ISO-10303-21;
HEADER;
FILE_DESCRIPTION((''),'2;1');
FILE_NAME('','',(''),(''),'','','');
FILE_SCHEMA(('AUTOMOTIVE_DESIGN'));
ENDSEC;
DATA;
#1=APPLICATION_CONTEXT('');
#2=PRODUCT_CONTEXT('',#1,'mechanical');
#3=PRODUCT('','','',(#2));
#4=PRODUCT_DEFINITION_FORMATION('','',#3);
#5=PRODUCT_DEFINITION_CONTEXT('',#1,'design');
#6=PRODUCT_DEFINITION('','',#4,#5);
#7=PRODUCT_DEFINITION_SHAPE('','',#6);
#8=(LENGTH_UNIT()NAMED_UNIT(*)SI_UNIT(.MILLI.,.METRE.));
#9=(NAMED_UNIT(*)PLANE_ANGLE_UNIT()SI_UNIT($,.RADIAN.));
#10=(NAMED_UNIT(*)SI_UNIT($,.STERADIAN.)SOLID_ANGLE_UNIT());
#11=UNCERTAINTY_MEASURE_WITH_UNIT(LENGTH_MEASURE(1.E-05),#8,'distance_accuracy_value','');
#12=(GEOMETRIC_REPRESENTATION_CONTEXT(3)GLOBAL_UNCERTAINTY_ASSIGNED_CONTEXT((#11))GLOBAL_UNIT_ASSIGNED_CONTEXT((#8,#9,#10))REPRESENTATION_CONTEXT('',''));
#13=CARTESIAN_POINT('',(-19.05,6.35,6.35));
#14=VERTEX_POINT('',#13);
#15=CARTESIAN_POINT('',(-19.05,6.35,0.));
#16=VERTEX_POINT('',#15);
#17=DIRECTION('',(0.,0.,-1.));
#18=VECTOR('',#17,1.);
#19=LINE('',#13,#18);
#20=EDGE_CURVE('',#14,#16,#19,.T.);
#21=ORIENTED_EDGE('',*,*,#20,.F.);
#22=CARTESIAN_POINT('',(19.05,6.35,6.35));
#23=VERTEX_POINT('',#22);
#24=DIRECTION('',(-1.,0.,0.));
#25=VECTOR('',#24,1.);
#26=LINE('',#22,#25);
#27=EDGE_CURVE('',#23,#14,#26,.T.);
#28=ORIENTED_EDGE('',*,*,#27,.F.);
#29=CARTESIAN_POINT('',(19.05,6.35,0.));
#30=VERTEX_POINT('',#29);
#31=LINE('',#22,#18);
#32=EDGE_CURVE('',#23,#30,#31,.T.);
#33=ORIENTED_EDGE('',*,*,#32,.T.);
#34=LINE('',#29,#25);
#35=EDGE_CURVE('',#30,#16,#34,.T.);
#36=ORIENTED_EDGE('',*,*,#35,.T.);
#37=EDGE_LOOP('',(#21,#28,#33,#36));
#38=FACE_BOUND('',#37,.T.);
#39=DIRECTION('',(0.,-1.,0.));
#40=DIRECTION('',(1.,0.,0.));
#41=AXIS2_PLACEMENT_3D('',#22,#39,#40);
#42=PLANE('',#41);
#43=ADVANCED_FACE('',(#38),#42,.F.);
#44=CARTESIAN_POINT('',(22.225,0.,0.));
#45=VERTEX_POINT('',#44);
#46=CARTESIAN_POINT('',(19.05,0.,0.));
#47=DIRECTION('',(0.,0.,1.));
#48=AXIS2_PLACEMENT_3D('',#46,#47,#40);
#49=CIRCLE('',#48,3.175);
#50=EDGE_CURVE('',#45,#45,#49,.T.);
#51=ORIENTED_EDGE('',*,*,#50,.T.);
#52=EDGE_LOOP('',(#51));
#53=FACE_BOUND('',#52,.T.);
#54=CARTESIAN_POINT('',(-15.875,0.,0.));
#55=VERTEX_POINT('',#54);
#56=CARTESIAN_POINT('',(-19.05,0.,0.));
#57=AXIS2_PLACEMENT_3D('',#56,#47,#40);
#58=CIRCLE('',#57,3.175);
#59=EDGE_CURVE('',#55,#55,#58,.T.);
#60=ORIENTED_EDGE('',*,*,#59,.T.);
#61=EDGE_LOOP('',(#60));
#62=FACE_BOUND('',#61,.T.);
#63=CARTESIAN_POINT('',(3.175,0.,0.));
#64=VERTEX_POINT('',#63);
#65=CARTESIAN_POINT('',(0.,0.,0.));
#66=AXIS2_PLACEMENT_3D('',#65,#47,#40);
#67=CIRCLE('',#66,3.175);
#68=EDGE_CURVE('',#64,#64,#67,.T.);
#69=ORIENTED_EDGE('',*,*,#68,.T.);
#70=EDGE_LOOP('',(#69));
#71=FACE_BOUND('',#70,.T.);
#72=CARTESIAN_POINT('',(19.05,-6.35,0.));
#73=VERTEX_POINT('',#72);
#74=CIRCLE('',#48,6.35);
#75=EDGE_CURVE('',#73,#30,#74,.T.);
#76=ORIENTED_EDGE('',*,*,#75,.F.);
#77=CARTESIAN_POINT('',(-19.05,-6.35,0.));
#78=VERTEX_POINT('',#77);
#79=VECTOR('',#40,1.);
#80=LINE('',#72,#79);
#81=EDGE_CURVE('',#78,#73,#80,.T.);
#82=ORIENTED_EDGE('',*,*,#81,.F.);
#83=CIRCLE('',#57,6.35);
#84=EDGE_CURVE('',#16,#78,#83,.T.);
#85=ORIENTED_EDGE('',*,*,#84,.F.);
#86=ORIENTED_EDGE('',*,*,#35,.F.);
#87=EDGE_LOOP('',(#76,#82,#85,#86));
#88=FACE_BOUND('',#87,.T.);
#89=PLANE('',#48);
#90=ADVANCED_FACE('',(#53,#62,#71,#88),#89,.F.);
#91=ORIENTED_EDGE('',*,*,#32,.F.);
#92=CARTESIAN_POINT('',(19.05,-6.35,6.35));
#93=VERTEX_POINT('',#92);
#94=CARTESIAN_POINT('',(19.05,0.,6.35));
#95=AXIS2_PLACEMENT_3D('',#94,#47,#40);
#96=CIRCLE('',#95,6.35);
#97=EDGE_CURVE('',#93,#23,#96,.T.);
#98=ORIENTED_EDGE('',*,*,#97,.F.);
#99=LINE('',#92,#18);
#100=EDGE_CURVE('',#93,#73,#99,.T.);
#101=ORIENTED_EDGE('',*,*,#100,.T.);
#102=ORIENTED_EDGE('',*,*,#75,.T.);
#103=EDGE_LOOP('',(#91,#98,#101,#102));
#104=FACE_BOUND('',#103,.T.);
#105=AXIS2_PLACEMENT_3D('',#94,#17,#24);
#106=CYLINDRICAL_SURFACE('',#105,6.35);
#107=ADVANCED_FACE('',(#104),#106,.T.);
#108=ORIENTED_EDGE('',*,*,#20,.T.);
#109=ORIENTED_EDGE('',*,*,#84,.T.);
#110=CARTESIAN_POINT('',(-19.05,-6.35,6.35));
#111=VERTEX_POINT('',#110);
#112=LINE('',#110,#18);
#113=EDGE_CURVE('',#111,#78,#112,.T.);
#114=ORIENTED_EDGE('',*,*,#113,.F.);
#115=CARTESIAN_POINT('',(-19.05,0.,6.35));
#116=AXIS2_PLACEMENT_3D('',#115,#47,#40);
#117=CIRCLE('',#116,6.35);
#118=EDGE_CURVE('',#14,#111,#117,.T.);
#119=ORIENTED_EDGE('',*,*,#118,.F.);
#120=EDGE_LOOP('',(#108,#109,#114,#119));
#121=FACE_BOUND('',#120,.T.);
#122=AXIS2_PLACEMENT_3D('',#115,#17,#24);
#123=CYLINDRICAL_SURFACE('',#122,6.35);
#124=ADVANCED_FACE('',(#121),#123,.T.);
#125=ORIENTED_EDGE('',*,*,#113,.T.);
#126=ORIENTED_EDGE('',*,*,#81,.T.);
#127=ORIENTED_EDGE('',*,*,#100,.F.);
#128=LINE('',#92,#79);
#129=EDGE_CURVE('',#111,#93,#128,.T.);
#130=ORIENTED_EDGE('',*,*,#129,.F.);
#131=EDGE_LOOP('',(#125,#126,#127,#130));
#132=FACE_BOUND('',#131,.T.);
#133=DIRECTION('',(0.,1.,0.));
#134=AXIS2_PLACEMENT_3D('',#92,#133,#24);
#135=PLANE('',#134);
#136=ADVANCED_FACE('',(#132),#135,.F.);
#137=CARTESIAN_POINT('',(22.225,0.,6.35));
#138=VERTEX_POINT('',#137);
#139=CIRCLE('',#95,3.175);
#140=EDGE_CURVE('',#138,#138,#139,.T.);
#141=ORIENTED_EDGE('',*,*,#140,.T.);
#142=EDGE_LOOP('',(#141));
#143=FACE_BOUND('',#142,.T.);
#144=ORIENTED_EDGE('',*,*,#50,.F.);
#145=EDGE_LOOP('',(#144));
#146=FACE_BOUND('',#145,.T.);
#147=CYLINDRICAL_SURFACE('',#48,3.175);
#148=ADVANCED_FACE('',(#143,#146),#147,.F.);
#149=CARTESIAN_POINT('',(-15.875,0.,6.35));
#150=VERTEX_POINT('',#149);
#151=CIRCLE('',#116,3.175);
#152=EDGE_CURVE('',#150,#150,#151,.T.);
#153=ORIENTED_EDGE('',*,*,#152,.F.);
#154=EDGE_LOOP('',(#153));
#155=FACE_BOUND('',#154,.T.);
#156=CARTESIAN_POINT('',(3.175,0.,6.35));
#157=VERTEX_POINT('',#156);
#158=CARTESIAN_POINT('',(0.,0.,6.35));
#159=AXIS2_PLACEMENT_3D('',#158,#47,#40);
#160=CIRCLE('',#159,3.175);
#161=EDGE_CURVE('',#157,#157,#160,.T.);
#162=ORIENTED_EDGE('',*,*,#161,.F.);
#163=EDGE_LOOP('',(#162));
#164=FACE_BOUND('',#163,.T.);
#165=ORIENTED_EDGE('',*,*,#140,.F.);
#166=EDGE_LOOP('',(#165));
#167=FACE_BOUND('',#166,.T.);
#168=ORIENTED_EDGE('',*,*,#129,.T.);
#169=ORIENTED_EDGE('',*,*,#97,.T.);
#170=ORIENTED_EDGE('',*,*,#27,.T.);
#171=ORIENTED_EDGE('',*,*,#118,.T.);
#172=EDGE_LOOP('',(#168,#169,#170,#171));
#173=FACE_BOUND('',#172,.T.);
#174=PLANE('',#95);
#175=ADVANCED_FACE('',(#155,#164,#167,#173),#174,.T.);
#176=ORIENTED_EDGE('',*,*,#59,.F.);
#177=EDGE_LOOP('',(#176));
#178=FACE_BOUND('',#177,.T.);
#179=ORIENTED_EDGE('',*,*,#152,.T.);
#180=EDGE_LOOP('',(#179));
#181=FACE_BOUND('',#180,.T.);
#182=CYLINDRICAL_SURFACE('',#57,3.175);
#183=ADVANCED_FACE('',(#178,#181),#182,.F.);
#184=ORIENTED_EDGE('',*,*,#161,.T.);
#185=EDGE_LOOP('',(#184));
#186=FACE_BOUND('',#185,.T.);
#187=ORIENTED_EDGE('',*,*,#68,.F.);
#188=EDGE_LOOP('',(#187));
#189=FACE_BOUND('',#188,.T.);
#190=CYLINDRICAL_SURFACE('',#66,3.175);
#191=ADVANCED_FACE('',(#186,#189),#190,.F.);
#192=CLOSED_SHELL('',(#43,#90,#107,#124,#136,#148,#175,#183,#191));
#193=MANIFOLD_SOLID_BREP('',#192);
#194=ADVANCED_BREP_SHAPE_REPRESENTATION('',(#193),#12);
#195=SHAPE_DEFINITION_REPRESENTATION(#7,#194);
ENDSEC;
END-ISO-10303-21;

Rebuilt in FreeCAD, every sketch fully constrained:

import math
import FreeCAD as App
import Part
import Sketcher

V = App.Vector
Q = App.Units.Quantity

doc = App.newDocument("Part")
body = doc.addObject("PartDesign::Body", "Body")

# Sketch on XY plane
sketch1 = body.newObject("Sketcher::SketchObject", "Sketch")
sketch1.AttachmentSupport = (doc.getObject("XY_Plane"), [""])
sketch1.MapMode = "FlatFace"
sketch1.addGeometry([
    Part.LineSegment(V(-19, -6, 0), V(19, -6, 0)),
    Part.ArcOfCircle(Part.Circle(V(19, 0, 0), V(0, 0, 1), 6), math.radians(-90), math.radians(90)),
    Part.LineSegment(V(19, 6, 0), V(-19, 6, 0)),
    Part.ArcOfCircle(Part.Circle(V(-19, 0, 0), V(0, 0, 1), 6), math.radians(90), math.radians(270)),
], False)
sketch1.addConstraint([
    Sketcher.Constraint("Tangent", 0, 2, 1, 1),
    Sketcher.Constraint("Tangent", 1, 2, 2, 1),
    Sketcher.Constraint("Tangent", 2, 2, 3, 1),
    Sketcher.Constraint("Tangent", 3, 2, 0, 1),
    Sketcher.Constraint("Horizontal", 0),
    Sketcher.Constraint("Horizontal", 2),
    Sketcher.Constraint("Symmetric", 1, 3, 3, 3, -1, 1),
    Sketcher.Constraint("Radius", 1, Q("0.25 in")),
    Sketcher.Constraint("DistanceX", 0, 1, 0, 2, Q("1.5 in")),
])
pad1 = body.newObject("PartDesign::Pad", "Pad")
pad1.Profile = sketch1
pad1.Length = Q("0.25 in")

# Sketch on XY plane
sketch2 = body.newObject("Sketcher::SketchObject", "Sketch001")
sketch2.AttachmentSupport = (doc.getObject("XY_Plane"), [""])
sketch2.MapMode = "FlatFace"
sketch2.AttachmentOffset = App.Placement(V(0, 0, 0.25 * 25.4), App.Rotation())
sketch2.addGeometry([
    Part.Circle(V(-19.1, 0, 0), V(0, 0, 1), 3.2),
    Part.Circle(V(0, 0, 0), V(0, 0, 1), 3.2),
    Part.Circle(V(19.1, 0, 0), V(0, 0, 1), 3.2),
], False)
sketch2.addConstraint([
    Sketcher.Constraint("Coincident", 1, 3, -1, 1),
    Sketcher.Constraint("Equal", 0, 1),
    Sketcher.Constraint("Equal", 1, 2),
    Sketcher.Constraint("Symmetric", 0, 3, 2, 3, -1, 1),
    Sketcher.Constraint("PointOnObject", 0, 3, -1),
    Sketcher.Constraint("Diameter", 0, Q("0.25 in")),
    Sketcher.Constraint("DistanceX", 0, 3, 2, 3, Q("1.5 in")),
])
pocket1 = body.newObject("PartDesign::Pocket", "Pocket")
pocket1.Profile = sketch2
pocket1.Type = "ThroughAll"

doc.recompute()
